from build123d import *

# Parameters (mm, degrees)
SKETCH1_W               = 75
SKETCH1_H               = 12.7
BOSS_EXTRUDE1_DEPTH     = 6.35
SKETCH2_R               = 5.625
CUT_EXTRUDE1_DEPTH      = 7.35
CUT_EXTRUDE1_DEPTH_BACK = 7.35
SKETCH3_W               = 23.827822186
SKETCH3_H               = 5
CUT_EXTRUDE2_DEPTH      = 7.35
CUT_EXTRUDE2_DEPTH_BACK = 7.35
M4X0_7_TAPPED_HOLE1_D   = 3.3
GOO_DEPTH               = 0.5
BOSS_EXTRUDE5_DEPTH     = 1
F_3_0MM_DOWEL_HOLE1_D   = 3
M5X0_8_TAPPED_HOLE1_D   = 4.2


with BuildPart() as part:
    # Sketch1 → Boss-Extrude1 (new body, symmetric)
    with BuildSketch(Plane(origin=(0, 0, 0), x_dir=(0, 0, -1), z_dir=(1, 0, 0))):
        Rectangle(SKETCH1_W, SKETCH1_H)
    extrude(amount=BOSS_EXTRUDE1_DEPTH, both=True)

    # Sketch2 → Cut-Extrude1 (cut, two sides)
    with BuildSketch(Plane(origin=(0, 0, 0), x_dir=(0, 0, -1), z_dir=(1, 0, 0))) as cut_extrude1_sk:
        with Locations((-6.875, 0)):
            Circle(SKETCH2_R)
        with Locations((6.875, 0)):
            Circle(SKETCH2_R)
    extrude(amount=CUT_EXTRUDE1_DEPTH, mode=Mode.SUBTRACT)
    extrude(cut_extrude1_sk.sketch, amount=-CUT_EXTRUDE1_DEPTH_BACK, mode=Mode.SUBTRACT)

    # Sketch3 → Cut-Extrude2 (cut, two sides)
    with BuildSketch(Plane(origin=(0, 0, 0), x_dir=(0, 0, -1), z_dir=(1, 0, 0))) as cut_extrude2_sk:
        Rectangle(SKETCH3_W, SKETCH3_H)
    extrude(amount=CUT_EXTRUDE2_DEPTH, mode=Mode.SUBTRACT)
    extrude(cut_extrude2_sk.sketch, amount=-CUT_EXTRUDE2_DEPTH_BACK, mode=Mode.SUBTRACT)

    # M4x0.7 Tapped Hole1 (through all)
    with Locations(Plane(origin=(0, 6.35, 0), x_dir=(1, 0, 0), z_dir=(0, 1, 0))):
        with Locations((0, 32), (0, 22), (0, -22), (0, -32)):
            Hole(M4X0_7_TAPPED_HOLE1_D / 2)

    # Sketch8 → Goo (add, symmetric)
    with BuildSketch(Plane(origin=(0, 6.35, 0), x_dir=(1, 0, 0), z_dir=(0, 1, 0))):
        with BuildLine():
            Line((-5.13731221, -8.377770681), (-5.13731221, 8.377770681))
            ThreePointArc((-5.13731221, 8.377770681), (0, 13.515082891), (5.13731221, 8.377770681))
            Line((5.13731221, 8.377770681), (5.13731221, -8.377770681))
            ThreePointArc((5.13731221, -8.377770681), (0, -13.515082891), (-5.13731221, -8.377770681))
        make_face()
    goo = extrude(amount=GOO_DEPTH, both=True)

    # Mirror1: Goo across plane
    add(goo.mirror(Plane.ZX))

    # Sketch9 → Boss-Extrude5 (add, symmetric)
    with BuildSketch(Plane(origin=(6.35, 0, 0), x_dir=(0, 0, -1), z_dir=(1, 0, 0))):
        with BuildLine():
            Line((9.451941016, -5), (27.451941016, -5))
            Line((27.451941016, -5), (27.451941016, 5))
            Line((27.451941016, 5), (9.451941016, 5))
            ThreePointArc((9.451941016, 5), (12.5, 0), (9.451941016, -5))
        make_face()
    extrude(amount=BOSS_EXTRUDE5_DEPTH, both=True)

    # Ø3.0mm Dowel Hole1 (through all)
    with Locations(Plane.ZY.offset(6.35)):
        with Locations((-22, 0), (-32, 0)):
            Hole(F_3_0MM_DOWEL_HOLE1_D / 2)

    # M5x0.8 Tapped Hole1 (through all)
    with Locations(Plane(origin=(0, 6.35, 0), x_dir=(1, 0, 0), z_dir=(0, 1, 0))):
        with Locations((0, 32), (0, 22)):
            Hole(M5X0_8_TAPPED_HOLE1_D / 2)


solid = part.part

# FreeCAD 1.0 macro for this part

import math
import FreeCAD as App
import Part
import Sketcher
from FreeCAD import Vector

doc = App.newDocument("Part")
body = doc.addObject("PartDesign::Body", "Body")

# Sketch on YZ plane
sketch1 = doc.addObject("Sketcher::SketchObject", "Sketch")
body.addObject(sketch1)
sketch1.AttachmentSupport = (doc.YZ_Plane, [""])
sketch1.MapMode = "FlatFace"
sketch1.addGeometry(Part.LineSegment(Vector(6, 38, 0), Vector(-6, 38, 0)), False)
sketch1.addGeometry(Part.LineSegment(Vector(-6, 38, 0), Vector(-6, -38, 0)), False)
sketch1.addGeometry(Part.LineSegment(Vector(-6, -38, 0), Vector(6, -38, 0)), False)
sketch1.addGeometry(Part.LineSegment(Vector(6, -38, 0), Vector(6, 38, 0)), False)
sketch1.addConstraint(Sketcher.Constraint("Coincident", 0, 2, 1, 1))
sketch1.addConstraint(Sketcher.Constraint("Coincident", 1, 2, 2, 1))
sketch1.addConstraint(Sketcher.Constraint("Coincident", 2, 2, 3, 1))
sketch1.addConstraint(Sketcher.Constraint("Coincident", 3, 2, 0, 1))
sketch1.addConstraint(Sketcher.Constraint("Horizontal", 0))
sketch1.addConstraint(Sketcher.Constraint("Vertical", 1))
sketch1.addConstraint(Sketcher.Constraint("Horizontal", 2))
sketch1.addConstraint(Sketcher.Constraint("Vertical", 3))
sketch1.addConstraint(Sketcher.Constraint("Symmetric", 0, 2, 2, 2, -1, 1))
sketch1.addConstraint(Sketcher.Constraint("DistanceY", 1, 2, 1, 1, 75.0))
sketch1.addConstraint(Sketcher.Constraint("DistanceX", 0, 2, 0, 1, 12.7))
pad1 = doc.addObject("PartDesign::Pad", "Pad")
body.addObject(pad1)
pad1.Profile = sketch1
pad1.Length = 12.7
pad1.Midplane = True

# Sketch on YZ plane
sketch2 = doc.addObject("Sketcher::SketchObject", "Sketch001")
body.addObject(sketch2)
sketch2.AttachmentSupport = (doc.YZ_Plane, [""])
sketch2.MapMode = "FlatFace"
sketch2.addGeometry(Part.Circle(Vector(0, 7, 0), Vector(0, 0, 1), 6), False)
sketch2.addGeometry(Part.Circle(Vector(0, -7, 0), Vector(0, 0, 1), 6), False)
sketch2.addConstraint(Sketcher.Constraint("Equal", 0, 1))
sketch2.addConstraint(Sketcher.Constraint("Symmetric", 0, 3, 1, 3, -1, 1))
sketch2.addConstraint(Sketcher.Constraint("PointOnObject", 0, 3, -2))
sketch2.addConstraint(Sketcher.Constraint("Diameter", 0, 11.25))
sketch2.addConstraint(Sketcher.Constraint("DistanceY", 1, 3, 0, 3, 13.75))
pocket1 = doc.addObject("PartDesign::Pocket", "Pocket")
body.addObject(pocket1)
pocket1.Profile = sketch2
pocket1.Type = "ThroughAll"
pocket1.Midplane = True

# Sketch on YZ plane
sketch3 = doc.addObject("Sketcher::SketchObject", "Sketch002")
body.addObject(sketch3)
sketch3.AttachmentSupport = (doc.YZ_Plane, [""])
sketch3.MapMode = "FlatFace"
sketch3.addGeometry(Part.LineSegment(Vector(2, 12, 0), Vector(-2, 12, 0)), False)
sketch3.addGeometry(Part.LineSegment(Vector(-2, 12, 0), Vector(-2, -12, 0)), False)
sketch3.addGeometry(Part.LineSegment(Vector(-2, -12, 0), Vector(2, -12, 0)), False)
sketch3.addGeometry(Part.LineSegment(Vector(2, -12, 0), Vector(2, 12, 0)), False)
sketch3.addConstraint(Sketcher.Constraint("Coincident", 0, 2, 1, 1))
sketch3.addConstraint(Sketcher.Constraint("Coincident", 1, 2, 2, 1))
sketch3.addConstraint(Sketcher.Constraint("Coincident", 2, 2, 3, 1))
sketch3.addConstraint(Sketcher.Constraint("Coincident", 3, 2, 0, 1))
sketch3.addConstraint(Sketcher.Constraint("Horizontal", 0))
sketch3.addConstraint(Sketcher.Constraint("Vertical", 1))
sketch3.addConstraint(Sketcher.Constraint("Horizontal", 2))
sketch3.addConstraint(Sketcher.Constraint("Vertical", 3))
sketch3.addConstraint(Sketcher.Constraint("Symmetric", 0, 2, 2, 2, -1, 1))
sketch3.addConstraint(Sketcher.Constraint("DistanceX", 0, 2, 0, 1, 5.0))
sketch3.addConstraint(Sketcher.Constraint("DistanceY", 1, 2, 1, 1, 23.827822))
pocket2 = doc.addObject("PartDesign::Pocket", "Pocket001")
body.addObject(pocket2)
pocket2.Profile = sketch3
pocket2.Type = "ThroughAll"
pocket2.Midplane = True

# Sketch on XZ plane
sketch4 = doc.addObject("Sketcher::SketchObject", "Sketch003")
body.addObject(sketch4)
sketch4.AttachmentSupport = (doc.XZ_Plane, [""])
sketch4.MapMode = "FlatFace"
sketch4.AttachmentOffset = App.Placement(Vector(0, 0, -6.35), App.Rotation())
sketch4.addGeometry(Part.Circle(Vector(0, -32, 0), Vector(0, 0, 1), 1.6), False)
sketch4.addGeometry(Part.Circle(Vector(0, -22, 0), Vector(0, 0, 1), 1.6), False)
sketch4.addGeometry(Part.Circle(Vector(0, 22, 0), Vector(0, 0, 1), 1.6), False)
sketch4.addGeometry(Part.Circle(Vector(0, 32, 0), Vector(0, 0, 1), 1.6), False)
sketch4.addConstraint(Sketcher.Constraint("Equal", 0, 1))
sketch4.addConstraint(Sketcher.Constraint("Equal", 1, 2))
sketch4.addConstraint(Sketcher.Constraint("Equal", 2, 3))
sketch4.addConstraint(Sketcher.Constraint("Symmetric", 1, 3, 2, 3, -1, 1))
sketch4.addConstraint(Sketcher.Constraint("Symmetric", 0, 3, 3, 3, -1, 1))
sketch4.addConstraint(Sketcher.Constraint("PointOnObject", 0, 3, -2))
sketch4.addConstraint(Sketcher.Constraint("PointOnObject", 1, 3, -2))
sketch4.addConstraint(Sketcher.Constraint("Diameter", 0, 3.3))
sketch4.addConstraint(Sketcher.Constraint("DistanceY", 0, 3, -1, 1, 32.0))
sketch4.addConstraint(Sketcher.Constraint("DistanceY", 1, 3, -1, 1, 22.0))
doc.recompute()
hole = doc.addObject("PartDesign::Hole", "Hole")
body.addObject(hole)
hole.Profile = sketch4
hole.ThreadType = "None"
hole.Diameter = 3.3
hole.DepthType = "ThroughAll"
hole.Reversed = True

# Sketch on XZ plane
sketch5 = doc.addObject("Sketcher::SketchObject", "Sketch004")
body.addObject(sketch5)
sketch5.AttachmentSupport = (doc.XZ_Plane, [""])
sketch5.MapMode = "FlatFace"
sketch5.AttachmentOffset = App.Placement(Vector(0, 0, -6.35), App.Rotation())
sketch5.addGeometry(Part.LineSegment(Vector(-5, -8, 0), Vector(-5, 8, 0)), False)
sketch5.addGeometry(Part.ArcOfCircle(Part.Circle(Vector(0, 8, 0), Vector(0, 0, 1), 5), math.radians(0), math.radians(180)), False)
sketch5.addGeometry(Part.LineSegment(Vector(5, 8, 0), Vector(5, -8, 0)), False)
sketch5.addGeometry(Part.ArcOfCircle(Part.Circle(Vector(0, -8, 0), Vector(0, 0, 1), 5), math.radians(180), math.radians(360)), False)
sketch5.addConstraint(Sketcher.Constraint("Tangent", 0, 2, 1, 2))
sketch5.addConstraint(Sketcher.Constraint("Tangent", 1, 1, 2, 1))
sketch5.addConstraint(Sketcher.Constraint("Tangent", 2, 2, 3, 2))
sketch5.addConstraint(Sketcher.Constraint("Tangent", 3, 1, 0, 1))
sketch5.addConstraint(Sketcher.Constraint("Vertical", 0))
sketch5.addConstraint(Sketcher.Constraint("Vertical", 2))
sketch5.addConstraint(Sketcher.Constraint("Symmetric", 1, 3, 3, 3, -1, 1))
sketch5.addConstraint(Sketcher.Constraint("Radius", 1, 5.137312))
sketch5.addConstraint(Sketcher.Constraint("DistanceY", 0, 1, 0, 2, 16.755541))
pad2 = doc.addObject("PartDesign::Pad", "Pad001")
body.addObject(pad2)
pad2.Profile = sketch5
pad2.Length = 1
pad2.Midplane = True
doc.recompute()

mirrored = doc.addObject("PartDesign::Mirrored", "Mirrored")
body.addObject(mirrored)
mirrored.Originals = [pad2]
mirrored.MirrorPlane = (doc.XZ_Plane, [""])
body.Tip = mirrored

# Sketch on YZ plane
sketch6 = doc.addObject("Sketcher::SketchObject", "Sketch005")
body.addObject(sketch6)
sketch6.AttachmentSupport = (doc.YZ_Plane, [""])
sketch6.MapMode = "FlatFace"
sketch6.AttachmentOffset = App.Placement(Vector(0, 0, 6.35), App.Rotation())
sketch6.addGeometry(Part.LineSegment(Vector(-5, -9, 0), Vector(-5, -27, 0)), False)
sketch6.addGeometry(Part.LineSegment(Vector(-5, -27, 0), Vector(5, -27, 0)), False)
sketch6.addGeometry(Part.LineSegment(Vector(5, -27, 0), Vector(5, -9, 0)), False)
sketch6.addGeometry(Part.ArcOfCircle(Part.Circle(Vector(0, -7, 0), Vector(0, 0, 1), 6), math.radians(-153), math.radians(-27)), False)
sketch6.addConstraint(Sketcher.Constraint("Coincident", 0, 2, 1, 1))
sketch6.addConstraint(Sketcher.Constraint("Coincident", 1, 2, 2, 1))
sketch6.addConstraint(Sketcher.Constraint("Coincident", 2, 2, 3, 2))
sketch6.addConstraint(Sketcher.Constraint("Coincident", 3, 1, 0, 1))
sketch6.addConstraint(Sketcher.Constraint("Vertical", 0))
sketch6.addConstraint(Sketcher.Constraint("Horizontal", 1))
sketch6.addConstraint(Sketcher.Constraint("Vertical", 2))
sketch6.addConstraint(Sketcher.Constraint("Symmetric", 2, 2, 3, 1, -2))
sketch6.addConstraint(Sketcher.Constraint("DistanceX", 1, 1, 1, 2, 10.0))
sketch6.addConstraint(Sketcher.Constraint("DistanceY", 0, 2, 0, 1, 18.0))
sketch6.addConstraint(Sketcher.Constraint("Radius", 3, 5.625))
sketch6.addConstraint(Sketcher.Constraint("DistanceY", 3, 3, -1, 1, 6.875))
pad3 = doc.addObject("PartDesign::Pad", "Pad002")
body.addObject(pad3)
pad3.Profile = sketch6
pad3.Length = 2
pad3.Midplane = True

# Sketch on YZ plane
sketch7 = doc.addObject("Sketcher::SketchObject", "Sketch006")
body.addObject(sketch7)
sketch7.AttachmentSupport = (doc.YZ_Plane, [""])
sketch7.MapMode = "FlatFace"
sketch7.AttachmentOffset = App.Placement(Vector(0, 0, -6.35), App.Rotation())
sketch7.addGeometry(Part.Circle(Vector(0, -22, 0), Vector(0, 0, 1), 1.5), False)
sketch7.addGeometry(Part.Circle(Vector(0, -32, 0), Vector(0, 0, 1), 1.5), False)
sketch7.addConstraint(Sketcher.Constraint("Equal", 0, 1))
sketch7.addConstraint(Sketcher.Constraint("PointOnObject", 0, 3, -2))
sketch7.addConstraint(Sketcher.Constraint("PointOnObject", 1, 3, -2))
sketch7.addConstraint(Sketcher.Constraint("Diameter", 0, 3.0))
sketch7.addConstraint(Sketcher.Constraint("DistanceY", 0, 3, -1, 1, 22.0))
sketch7.addConstraint(Sketcher.Constraint("DistanceY", 1, 3, -1, 1, 32.0))
doc.recompute()
hole2 = doc.addObject("PartDesign::Hole", "Hole001")
body.addObject(hole2)
hole2.Profile = sketch7
hole2.ThreadType = "None"
hole2.Diameter = 3
hole2.DepthType = "ThroughAll"
hole2.Reversed = True

# Sketch on XZ plane
sketch8 = doc.addObject("Sketcher::SketchObject", "Sketch007")
body.addObject(sketch8)
sketch8.AttachmentSupport = (doc.XZ_Plane, [""])
sketch8.MapMode = "FlatFace"
sketch8.AttachmentOffset = App.Placement(Vector(0, 0, -6.35), App.Rotation())
sketch8.addGeometry(Part.Circle(Vector(0, -32, 0), Vector(0, 0, 1), 2.1), False)
sketch8.addGeometry(Part.Circle(Vector(0, -22, 0), Vector(0, 0, 1), 2.1), False)
sketch8.addConstraint(Sketcher.Constraint("Equal", 0, 1))
sketch8.addConstraint(Sketcher.Constraint("PointOnObject", 0, 3, -2))
sketch8.addConstraint(Sketcher.Constraint("PointOnObject", 1, 3, -2))
sketch8.addConstraint(Sketcher.Constraint("Diameter", 0, 4.2))
sketch8.addConstraint(Sketcher.Constraint("DistanceY", 0, 3, -1, 1, 32.0))
sketch8.addConstraint(Sketcher.Constraint("DistanceY", 1, 3, -1, 1, 22.0))
doc.recompute()
hole3 = doc.addObject("PartDesign::Hole", "Hole002")
body.addObject(hole3)
hole3.Profile = sketch8
hole3.ThreadType = "None"
hole3.Diameter = 4.2
hole3.DepthType = "ThroughAll"
hole3.Reversed = True

doc.recompute()
